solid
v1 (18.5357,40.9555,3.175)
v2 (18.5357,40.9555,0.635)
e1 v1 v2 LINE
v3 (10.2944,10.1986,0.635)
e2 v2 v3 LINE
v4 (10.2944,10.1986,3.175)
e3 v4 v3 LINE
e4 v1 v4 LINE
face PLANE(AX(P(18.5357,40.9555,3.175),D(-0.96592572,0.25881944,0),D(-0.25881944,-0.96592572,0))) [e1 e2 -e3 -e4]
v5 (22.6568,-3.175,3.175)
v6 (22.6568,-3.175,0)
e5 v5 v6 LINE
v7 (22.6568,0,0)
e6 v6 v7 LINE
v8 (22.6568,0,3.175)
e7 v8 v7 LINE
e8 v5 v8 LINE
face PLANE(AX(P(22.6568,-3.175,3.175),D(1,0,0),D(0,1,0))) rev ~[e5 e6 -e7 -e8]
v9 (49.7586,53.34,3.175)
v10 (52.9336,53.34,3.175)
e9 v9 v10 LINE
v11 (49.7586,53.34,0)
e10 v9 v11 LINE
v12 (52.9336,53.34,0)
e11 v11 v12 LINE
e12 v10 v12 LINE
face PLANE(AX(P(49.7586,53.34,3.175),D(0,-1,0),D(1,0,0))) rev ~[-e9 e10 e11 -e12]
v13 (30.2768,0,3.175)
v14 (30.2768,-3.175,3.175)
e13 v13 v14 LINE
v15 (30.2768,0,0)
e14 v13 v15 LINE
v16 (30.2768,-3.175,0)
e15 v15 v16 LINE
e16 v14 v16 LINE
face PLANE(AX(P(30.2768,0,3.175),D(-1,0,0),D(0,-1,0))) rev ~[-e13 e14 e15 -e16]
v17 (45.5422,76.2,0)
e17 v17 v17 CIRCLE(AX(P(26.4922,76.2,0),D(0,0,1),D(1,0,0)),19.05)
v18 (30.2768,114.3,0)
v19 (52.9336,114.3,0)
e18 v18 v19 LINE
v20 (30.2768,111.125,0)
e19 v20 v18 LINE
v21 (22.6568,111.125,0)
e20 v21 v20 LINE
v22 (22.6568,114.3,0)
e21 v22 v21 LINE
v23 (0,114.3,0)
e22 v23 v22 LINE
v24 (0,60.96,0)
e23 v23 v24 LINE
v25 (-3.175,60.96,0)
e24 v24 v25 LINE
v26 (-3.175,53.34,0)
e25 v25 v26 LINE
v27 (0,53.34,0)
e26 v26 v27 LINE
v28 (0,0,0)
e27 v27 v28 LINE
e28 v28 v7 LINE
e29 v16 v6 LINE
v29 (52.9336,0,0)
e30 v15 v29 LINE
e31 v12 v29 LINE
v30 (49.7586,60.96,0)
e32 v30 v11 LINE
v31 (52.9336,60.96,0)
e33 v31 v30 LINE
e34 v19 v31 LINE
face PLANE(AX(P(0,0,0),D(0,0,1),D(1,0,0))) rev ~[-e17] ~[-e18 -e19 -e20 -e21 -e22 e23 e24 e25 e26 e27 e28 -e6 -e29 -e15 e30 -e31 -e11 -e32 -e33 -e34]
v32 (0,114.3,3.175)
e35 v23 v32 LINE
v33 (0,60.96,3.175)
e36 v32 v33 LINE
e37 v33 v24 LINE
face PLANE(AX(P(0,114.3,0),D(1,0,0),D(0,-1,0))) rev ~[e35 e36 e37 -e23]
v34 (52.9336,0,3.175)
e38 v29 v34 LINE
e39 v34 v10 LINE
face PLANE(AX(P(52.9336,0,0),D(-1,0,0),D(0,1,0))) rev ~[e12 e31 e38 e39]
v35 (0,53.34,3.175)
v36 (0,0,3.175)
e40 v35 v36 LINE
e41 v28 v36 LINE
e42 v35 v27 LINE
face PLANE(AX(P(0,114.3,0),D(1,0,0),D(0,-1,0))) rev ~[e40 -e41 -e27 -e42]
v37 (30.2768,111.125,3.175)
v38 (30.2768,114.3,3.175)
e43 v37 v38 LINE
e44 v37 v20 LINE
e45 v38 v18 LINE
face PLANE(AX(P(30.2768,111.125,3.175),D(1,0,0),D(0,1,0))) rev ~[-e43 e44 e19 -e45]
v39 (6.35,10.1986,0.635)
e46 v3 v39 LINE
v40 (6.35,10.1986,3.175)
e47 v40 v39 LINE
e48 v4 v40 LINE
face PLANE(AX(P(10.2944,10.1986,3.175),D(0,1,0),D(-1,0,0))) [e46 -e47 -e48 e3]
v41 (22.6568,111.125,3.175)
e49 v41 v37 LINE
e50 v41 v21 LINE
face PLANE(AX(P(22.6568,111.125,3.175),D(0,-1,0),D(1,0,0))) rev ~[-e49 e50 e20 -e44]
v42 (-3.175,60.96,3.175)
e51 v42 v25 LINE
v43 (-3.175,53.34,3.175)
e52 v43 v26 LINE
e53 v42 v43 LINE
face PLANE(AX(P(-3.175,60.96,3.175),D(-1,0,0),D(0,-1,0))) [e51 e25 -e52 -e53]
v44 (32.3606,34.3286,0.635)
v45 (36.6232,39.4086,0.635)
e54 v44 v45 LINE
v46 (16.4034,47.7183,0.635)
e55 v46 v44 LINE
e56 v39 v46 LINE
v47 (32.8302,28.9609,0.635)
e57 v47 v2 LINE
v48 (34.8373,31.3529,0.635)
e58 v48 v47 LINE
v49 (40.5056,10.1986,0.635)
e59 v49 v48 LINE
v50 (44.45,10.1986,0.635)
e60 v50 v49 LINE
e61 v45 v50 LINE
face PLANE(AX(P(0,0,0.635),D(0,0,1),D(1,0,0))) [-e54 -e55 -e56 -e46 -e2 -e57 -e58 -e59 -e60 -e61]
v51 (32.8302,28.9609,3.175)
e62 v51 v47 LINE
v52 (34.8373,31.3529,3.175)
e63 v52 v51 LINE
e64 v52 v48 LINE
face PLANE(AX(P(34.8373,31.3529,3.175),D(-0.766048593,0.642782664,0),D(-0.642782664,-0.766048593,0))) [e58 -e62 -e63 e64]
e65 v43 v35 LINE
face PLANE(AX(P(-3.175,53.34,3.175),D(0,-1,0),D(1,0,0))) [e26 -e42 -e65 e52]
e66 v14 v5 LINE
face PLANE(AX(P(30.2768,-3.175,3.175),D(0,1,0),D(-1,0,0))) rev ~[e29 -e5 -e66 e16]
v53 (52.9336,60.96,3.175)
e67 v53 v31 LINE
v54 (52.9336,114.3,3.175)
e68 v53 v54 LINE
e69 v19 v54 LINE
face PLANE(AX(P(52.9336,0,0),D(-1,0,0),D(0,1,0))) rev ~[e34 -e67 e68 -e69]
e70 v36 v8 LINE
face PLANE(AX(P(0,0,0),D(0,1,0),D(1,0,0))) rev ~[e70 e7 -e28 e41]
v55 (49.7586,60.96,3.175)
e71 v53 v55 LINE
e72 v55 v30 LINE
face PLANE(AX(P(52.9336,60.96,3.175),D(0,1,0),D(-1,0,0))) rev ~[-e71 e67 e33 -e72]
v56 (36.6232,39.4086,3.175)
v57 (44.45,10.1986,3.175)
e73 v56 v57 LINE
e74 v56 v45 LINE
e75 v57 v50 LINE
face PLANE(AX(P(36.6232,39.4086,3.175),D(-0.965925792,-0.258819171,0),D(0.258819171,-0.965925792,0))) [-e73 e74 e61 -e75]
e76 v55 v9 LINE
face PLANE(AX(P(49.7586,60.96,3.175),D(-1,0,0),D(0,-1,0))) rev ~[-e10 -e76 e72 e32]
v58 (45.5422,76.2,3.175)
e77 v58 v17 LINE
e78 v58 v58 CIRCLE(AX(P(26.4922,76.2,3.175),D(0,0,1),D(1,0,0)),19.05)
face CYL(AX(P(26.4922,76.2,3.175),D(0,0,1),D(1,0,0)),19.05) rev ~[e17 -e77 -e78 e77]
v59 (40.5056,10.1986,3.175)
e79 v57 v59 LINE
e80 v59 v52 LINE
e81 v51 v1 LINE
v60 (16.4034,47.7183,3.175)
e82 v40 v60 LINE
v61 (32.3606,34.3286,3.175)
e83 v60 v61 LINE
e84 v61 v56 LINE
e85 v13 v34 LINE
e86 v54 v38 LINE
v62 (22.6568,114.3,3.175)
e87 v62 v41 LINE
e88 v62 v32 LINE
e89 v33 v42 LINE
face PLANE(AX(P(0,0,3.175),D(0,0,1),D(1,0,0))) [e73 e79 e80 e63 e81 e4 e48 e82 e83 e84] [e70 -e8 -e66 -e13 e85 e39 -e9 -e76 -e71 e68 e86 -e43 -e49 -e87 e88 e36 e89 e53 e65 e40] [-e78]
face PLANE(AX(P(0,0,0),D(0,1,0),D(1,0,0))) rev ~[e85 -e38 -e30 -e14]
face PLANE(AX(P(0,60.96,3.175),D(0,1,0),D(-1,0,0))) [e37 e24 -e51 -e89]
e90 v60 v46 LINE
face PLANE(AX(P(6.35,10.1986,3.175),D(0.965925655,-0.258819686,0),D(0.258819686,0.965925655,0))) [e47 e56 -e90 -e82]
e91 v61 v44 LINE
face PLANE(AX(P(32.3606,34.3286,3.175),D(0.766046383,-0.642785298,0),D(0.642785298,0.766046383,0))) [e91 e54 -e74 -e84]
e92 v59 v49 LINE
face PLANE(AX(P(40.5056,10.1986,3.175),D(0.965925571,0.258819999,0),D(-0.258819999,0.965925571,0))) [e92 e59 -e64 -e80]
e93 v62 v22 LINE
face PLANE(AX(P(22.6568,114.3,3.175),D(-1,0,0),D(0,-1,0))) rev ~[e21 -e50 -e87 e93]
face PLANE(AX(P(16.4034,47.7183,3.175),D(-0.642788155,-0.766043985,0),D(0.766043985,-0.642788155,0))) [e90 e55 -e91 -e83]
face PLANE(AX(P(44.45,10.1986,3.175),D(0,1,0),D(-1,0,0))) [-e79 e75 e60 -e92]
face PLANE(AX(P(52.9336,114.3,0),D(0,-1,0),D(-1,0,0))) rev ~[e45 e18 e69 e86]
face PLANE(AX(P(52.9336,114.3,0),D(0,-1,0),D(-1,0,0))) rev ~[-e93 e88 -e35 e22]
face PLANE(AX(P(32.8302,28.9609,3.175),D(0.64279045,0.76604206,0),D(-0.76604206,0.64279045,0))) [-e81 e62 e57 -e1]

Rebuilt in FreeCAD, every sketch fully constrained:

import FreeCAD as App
import Part
import Sketcher
from FreeCAD import Vector
Q = App.Units.Quantity


def add_polygon(sketch, points):
    """Adds a closed chain of lines whose ends are joined by coincident constraints."""
    first, n = sketch.GeometryCount, len(points)
    for a, b in zip(points, points[1:] + points[:1]):
        sketch.addGeometry(Part.LineSegment(App.Vector(*a, 0), App.Vector(*b, 0)), False)
    for i in range(n):
        sketch.addConstraint(Sketcher.Constraint("Coincident", first + i, 2, first + (i + 1) % n, 1))

doc = App.newDocument("Part")
body = doc.addObject("PartDesign::Body", "Body")

# Sketch on XY plane
sketch1 = doc.addObject("Sketcher::SketchObject", "Sketch")
body.addObject(sketch1)
sketch1.AttachmentSupport = (doc.XY_Plane, [""])
sketch1.MapMode = "FlatFace"
add_polygon(sketch1, [(0, 114), (0, 0), (53, 0), (53, 114)])  # lines 0-3
sketch1.addConstraint([
    Sketcher.Constraint("Vertical", 0),
    Sketcher.Constraint("Horizontal", 1),
    Sketcher.Constraint("Vertical", 2),
    Sketcher.Constraint("Horizontal", 3),
    Sketcher.Constraint("Coincident", 0, 2, -1, 1),
    Sketcher.Constraint("DistanceY", 0, 2, 0, 1, Q("4.5 in")),
    Sketcher.Constraint("DistanceX", 1, 1, 1, 2, Q("2.084 in")),
])
pad1 = doc.addObject("PartDesign::Pad", "Pad")
body.addObject(pad1)
pad1.Profile = sketch1
pad1.Length = Q("0.125 in")

# Sketch on XY plane
sketch2 = doc.addObject("Sketcher::SketchObject", "Sketch001")
body.addObject(sketch2)
sketch2.AttachmentSupport = (doc.XY_Plane, [""])
sketch2.MapMode = "FlatFace"
sketch2.AttachmentOffset = App.Placement(Vector(0, 0, 0.125 * 25.4), App.Rotation())
add_polygon(sketch2, [(0, 53.3), (0, 61), (-3.2, 61), (-3.2, 53.3)])  # lines 0-3
add_polygon(sketch2, [(30.3, 114.3), (22.7, 114.3), (22.7, 111.1), (30.3, 111.1)])  # lines 4-7
add_polygon(sketch2, [(30.3, 0), (22.7, 0), (22.7, -3.2), (30.3, -3.2)])  # lines 8-11
add_polygon(sketch2, [(52.9, 53.3), (52.9, 61), (49.8, 61), (49.8, 53.3)])  # lines 12-15
sketch2.addConstraint([
    Sketcher.Constraint("Vertical", 0),
    Sketcher.Constraint("Horizontal", 1),
    Sketcher.Constraint("Vertical", 2),
    Sketcher.Constraint("Horizontal", 3),
    Sketcher.Constraint("Horizontal", 4),
    Sketcher.Constraint("Vertical", 5),
    Sketcher.Constraint("Horizontal", 6),
    Sketcher.Constraint("Vertical", 7),
    Sketcher.Constraint("Horizontal", 8),
    Sketcher.Constraint("Vertical", 9),
    Sketcher.Constraint("Horizontal", 10),
    Sketcher.Constraint("Vertical", 11),
    Sketcher.Constraint("Vertical", 12),
    Sketcher.Constraint("Horizontal", 13),
    Sketcher.Constraint("Vertical", 14),
    Sketcher.Constraint("Horizontal", 15),
    Sketcher.Constraint("PointOnObject", 0, 2, -2),
    Sketcher.Constraint("PointOnObject", 8, 2, -1),
    Sketcher.Constraint("Horizontal", 1, 2, 12, 2),
    Sketcher.Constraint("Horizontal", 3, 2, 14, 2),
    Sketcher.Constraint("Vertical", 5, 2, 8, 2),
    Sketcher.Constraint("Vertical", 7, 2, 10, 2),
    Sketcher.Constraint("Equal", 3, 13),
    Sketcher.Constraint("Equal", 10, 0),
    Sketcher.Constraint("Equal", 15, 5),
    Sketcher.Constraint("Equal", 7, 9),
    Sketcher.Constraint("DistanceX", 4, 2, 4, 1, Q("0.3 in")),
    Sketcher.Constraint("DistanceX", 1, 2, 1, 1, Q("0.125 in")),
    Sketcher.Constraint("DistanceY", -1, 1, 0, 2, Q("2.4 in")),
    Sketcher.Constraint("DistanceY", -1, 1, 4, 2, Q("4.5 in")),
    Sketcher.Constraint("DistanceX", -1, 1, 4, 2, Q("0.892 in")),
    Sketcher.Constraint("DistanceX", -1, 1, 12, 2, Q("2.084 in")),
])
pad2 = doc.addObject("PartDesign::Pad", "Pad001")
body.addObject(pad2)
pad2.Profile = sketch2
pad2.Length = Q("0.125 in")
pad2.Reversed = True

# Sketch on XY plane
sketch3 = doc.addObject("Sketcher::SketchObject", "Sketch002")
body.addObject(sketch3)
sketch3.AttachmentSupport = (doc.XY_Plane, [""])
sketch3.MapMode = "FlatFace"
sketch3.AttachmentOffset = App.Placement(Vector(0, 0, 0.125 * 25.4), App.Rotation())
add_polygon(sketch3, [(30.3, 114.3), (22.7, 114.3), (22.7, 111.1), (30.3, 111.1)])  # lines 0-3
add_polygon(sketch3, [(52.9, 53.3), (52.9, 61), (49.8, 61), (49.8, 53.3)])  # lines 4-7
sketch3.addConstraint([
    Sketcher.Constraint("Horizontal", 0),
    Sketcher.Constraint("Vertical", 1),
    Sketcher.Constraint("Horizontal", 2),
    Sketcher.Constraint("Vertical", 3),
    Sketcher.Constraint("Vertical", 4),
    Sketcher.Constraint("Horizontal", 5),
    Sketcher.Constraint("Vertical", 6),
    Sketcher.Constraint("Horizontal", 7),
    Sketcher.Constraint("Equal", 7, 1),
    Sketcher.Constraint("Equal", 2, 4),
    Sketcher.Constraint("DistanceX", 0, 2, 0, 1, Q("0.3 in")),
    Sketcher.Constraint("DistanceX", 5, 2, 5, 1, Q("0.125 in")),
    Sketcher.Constraint("DistanceY", -1, 1, 0, 2, Q("4.5 in")),
    Sketcher.Constraint("DistanceY", -1, 1, 4, 2, Q("2.4 in")),
    Sketcher.Constraint("DistanceX", -1, 1, 0, 2, Q("0.892 in")),
    Sketcher.Constraint("DistanceX", -1, 1, 4, 2, Q("2.084 in")),
])
pocket1 = doc.addObject("PartDesign::Pocket", "Pocket")
body.addObject(pocket1)
pocket1.Profile = sketch3
pocket1.Length = Q("0.125 in")

# Sketch on XY plane
sketch4 = doc.addObject("Sketcher::SketchObject", "Sketch003")
body.addObject(sketch4)
sketch4.AttachmentSupport = (doc.XY_Plane, [""])
sketch4.MapMode = "FlatFace"
sketch4.AttachmentOffset = App.Placement(Vector(0, 0, 0.125 * 25.4), App.Rotation())
sketch4.addGeometry(Part.Circle(Vector(26, 76, 0), Vector(0, 0, 1), 19), False)
sketch4.addConstraint([
    Sketcher.Constraint("Diameter", 0, Q("1.5 in")),
    Sketcher.Constraint("DistanceY", -1, 1, 0, 3, Q("3 in")),
    Sketcher.Constraint("DistanceX", -1, 1, 0, 3, Q("1.043 in")),
])
pocket2 = doc.addObject("PartDesign::Pocket", "Pocket001")
body.addObject(pocket2)
pocket2.Profile = sketch4
pocket2.Length = Q("1 in")

# Sketch on XY plane
sketch5 = doc.addObject("Sketcher::SketchObject", "Sketch004")
body.addObject(sketch5)
sketch5.AttachmentSupport = (doc.XY_Plane, [""])
sketch5.MapMode = "FlatFace"
sketch5.AttachmentOffset = App.Placement(Vector(0, 0, 0.125 * 25.4), App.Rotation())
add_polygon(sketch5, [(16.4, 47.7), (6.3, 10.2), (10.3, 10.2), (18.5, 41), (32.8, 29), (34.8, 31.4), (40.5, 10.2), (44.5, 10.2), (36.6, 39.4), (32.4, 34.3)])  # lines 0-9
sketch5.addConstraint([
    Sketcher.Constraint("Horizontal", 1),
    Sketcher.Constraint("Horizontal", 6),
    Sketcher.Constraint("Parallel", 0, 2),
    Sketcher.Constraint("Perpendicular", 3, 4),
    Sketcher.Constraint("Parallel", 5, 7),
    Sketcher.Constraint("Parallel", 4, 8),
    Sketcher.Constraint("Perpendicular", 8, 9),
    Sketcher.Constraint("Horizontal", 1, 2, 5, 2),
    Sketcher.Constraint("Equal", 1, 6),
    Sketcher.Constraint("Angle", 2, Q("75 deg")),
    Sketcher.Constraint("Angle", 5, Q("-75 deg")),
    Sketcher.Constraint("DistanceX", 0, 2, 6, 2, Q("1.5 in")),
    Sketcher.Constraint("DistanceY", 8, 2, 7, 2, Q("0.2 in")),
    Sketcher.Constraint("DistanceX", -1, 1, 0, 2, Q("0.25 in")),
    Sketcher.Constraint("DistanceY", 5, 2, 7, 2, Q("1.15 in")),
    Sketcher.Constraint("Angle", 3, Q("-40.0002 deg")),
    Sketcher.Constraint("DistanceX", 1, 1, 1, 2, Q("0.1553 in")),
    Sketcher.Constraint("DistanceY", -1, 1, 4, 2, Q("1.2343701 in")),
    Sketcher.Constraint("DistanceY", -1, 1, 3, 2, Q("1.1402 in")),
    Sketcher.Constraint("DistanceY", 1, 2, 2, 2, Q("1.2109 in")),
])
pocket3 = doc.addObject("PartDesign::Pocket", "Pocket002")
body.addObject(pocket3)
pocket3.Profile = sketch5
pocket3.Length = Q("0.1 in")

doc.recompute()
